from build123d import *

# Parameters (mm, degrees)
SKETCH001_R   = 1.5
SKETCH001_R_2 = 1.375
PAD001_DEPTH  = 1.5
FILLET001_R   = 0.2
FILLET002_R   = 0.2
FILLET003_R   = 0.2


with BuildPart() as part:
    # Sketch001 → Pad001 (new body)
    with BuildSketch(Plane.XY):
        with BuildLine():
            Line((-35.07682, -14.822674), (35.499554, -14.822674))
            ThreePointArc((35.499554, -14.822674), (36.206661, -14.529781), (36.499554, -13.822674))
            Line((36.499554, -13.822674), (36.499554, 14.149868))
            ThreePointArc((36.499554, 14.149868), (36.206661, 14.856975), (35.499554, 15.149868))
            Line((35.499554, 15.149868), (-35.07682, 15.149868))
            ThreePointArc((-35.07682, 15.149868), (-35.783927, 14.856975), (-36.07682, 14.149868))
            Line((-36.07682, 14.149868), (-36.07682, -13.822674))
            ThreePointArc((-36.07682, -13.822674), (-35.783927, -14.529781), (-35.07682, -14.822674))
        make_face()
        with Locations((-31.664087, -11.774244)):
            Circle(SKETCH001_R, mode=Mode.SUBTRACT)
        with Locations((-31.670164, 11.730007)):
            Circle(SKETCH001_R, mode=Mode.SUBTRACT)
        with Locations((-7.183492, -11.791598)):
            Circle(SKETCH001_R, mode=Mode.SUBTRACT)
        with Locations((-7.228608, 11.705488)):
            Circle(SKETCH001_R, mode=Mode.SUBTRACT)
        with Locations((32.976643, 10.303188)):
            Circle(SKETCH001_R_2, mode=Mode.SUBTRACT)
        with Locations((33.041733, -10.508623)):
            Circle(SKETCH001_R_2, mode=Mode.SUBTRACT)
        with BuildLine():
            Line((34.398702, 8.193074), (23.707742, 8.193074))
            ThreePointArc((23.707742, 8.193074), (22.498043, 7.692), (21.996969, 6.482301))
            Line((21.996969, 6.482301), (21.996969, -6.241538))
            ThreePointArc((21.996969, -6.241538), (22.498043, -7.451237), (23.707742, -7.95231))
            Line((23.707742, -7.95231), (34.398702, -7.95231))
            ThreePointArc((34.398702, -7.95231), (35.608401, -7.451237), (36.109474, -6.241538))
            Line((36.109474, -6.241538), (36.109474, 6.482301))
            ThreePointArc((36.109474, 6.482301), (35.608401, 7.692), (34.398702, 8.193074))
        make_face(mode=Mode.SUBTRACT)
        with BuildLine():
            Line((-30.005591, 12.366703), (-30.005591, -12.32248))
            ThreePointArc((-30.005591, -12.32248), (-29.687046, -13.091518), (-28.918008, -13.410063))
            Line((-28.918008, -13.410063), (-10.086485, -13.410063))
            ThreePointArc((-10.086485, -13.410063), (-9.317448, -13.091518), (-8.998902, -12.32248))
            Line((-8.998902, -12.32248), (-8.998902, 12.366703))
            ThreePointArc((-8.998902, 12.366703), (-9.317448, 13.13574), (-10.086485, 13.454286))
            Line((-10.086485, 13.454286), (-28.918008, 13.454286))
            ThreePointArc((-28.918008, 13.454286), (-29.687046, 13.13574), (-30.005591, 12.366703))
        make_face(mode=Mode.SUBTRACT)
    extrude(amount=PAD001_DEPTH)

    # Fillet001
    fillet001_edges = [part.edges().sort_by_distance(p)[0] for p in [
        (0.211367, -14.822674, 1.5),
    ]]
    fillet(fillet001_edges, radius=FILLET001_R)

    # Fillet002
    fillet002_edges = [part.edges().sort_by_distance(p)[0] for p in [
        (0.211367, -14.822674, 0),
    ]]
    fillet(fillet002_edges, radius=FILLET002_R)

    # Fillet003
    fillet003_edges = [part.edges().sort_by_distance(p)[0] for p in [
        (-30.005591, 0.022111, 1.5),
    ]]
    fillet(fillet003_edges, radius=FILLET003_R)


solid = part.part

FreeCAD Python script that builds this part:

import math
import FreeCAD as App
import Part
import Sketcher
Q = App.Units.Quantity


def edges_at(feature, points):
    """Names of the edges that pass closest to the given points."""
    edges = feature.Shape.Edges
    near = lambda p: min(range(len(edges)), key=lambda i: edges[i].distToShape(Part.Vertex(*p))[0])
    return sorted({f"Edge{near(p) + 1}" for p in points})

doc = App.newDocument("Part")
body = doc.addObject("PartDesign::Body", "Body")

# Sketch on XY plane
sketch1 = body.newObject("Sketcher::SketchObject", "Sketch")
sketch1.AttachmentSupport = (doc.getObject("XY_Plane"), [""])
sketch1.MapMode = "FlatFace"
sketch1.addGeometry(Part.LineSegment(App.Vector(-35.07682, -14.822674, 0), App.Vector(35.499554, -14.822674, 0)), False)
sketch1.addGeometry(Part.ArcOfCircle(Part.Circle(App.Vector(35.499555, -13.822675, 0), App.Vector(0, 0, 1), 0.999999), math.radians(-90.000043), math.radians(0.000043)), False)
sketch1.addGeometry(Part.LineSegment(App.Vector(36.499554, -13.822674, 0), App.Vector(36.499554, 14.149868, 0)), False)
sketch1.addGeometry(Part.ArcOfCircle(Part.Circle(App.Vector(35.499555, 14.149869, 0), App.Vector(0, 0, 1), 0.999999), math.radians(-0.000043), math.radians(90.000043)), False)
sketch1.addGeometry(Part.LineSegment(App.Vector(35.499554, 15.149868, 0), App.Vector(-35.07682, 15.149868, 0)), False)
sketch1.addGeometry(Part.ArcOfCircle(Part.Circle(App.Vector(-35.076821, 14.149869, 0), App.Vector(0, 0, 1), 0.999999), math.radians(89.999957), math.radians(180.000043)), False)
sketch1.addGeometry(Part.LineSegment(App.Vector(-36.07682, 14.149868, 0), App.Vector(-36.07682, -13.822674, 0)), False)
sketch1.addGeometry(Part.ArcOfCircle(Part.Circle(App.Vector(-35.076821, -13.822675, 0), App.Vector(0, 0, 1), 0.999999), math.radians(179.999957), math.radians(270.000043)), False)
sketch1.addGeometry(Part.Circle(App.Vector(-31.664087, -11.774244, 0), App.Vector(0, 0, 1), 1.5), False)
sketch1.addGeometry(Part.Circle(App.Vector(-7.183492, -11.791598, 0), App.Vector(0, 0, 1), 1.5), False)
sketch1.addGeometry(Part.Circle(App.Vector(33.041733, -10.508623, 0), App.Vector(0, 0, 1), 1.375), False)
sketch1.addGeometry(Part.LineSegment(App.Vector(-30.005591, -12.32248, 0), App.Vector(-30.005591, 12.366703, 0)), False)
sketch1.addGeometry(Part.ArcOfCircle(Part.Circle(App.Vector(-28.918009, 12.366704, 0), App.Vector(0, 0, 1), 1.087582), math.radians(89.999967), math.radians(180.000033)), False)
sketch1.addGeometry(Part.LineSegment(App.Vector(-28.918008, 13.454286, 0), App.Vector(-10.086485, 13.454286, 0)), False)
sketch1.addGeometry(Part.ArcOfCircle(Part.Circle(App.Vector(-10.086486, 12.366702, 0), App.Vector(0, 0, 1), 1.087584), math.radians(0.000057), math.radians(89.999943)), False)
sketch1.addGeometry(Part.LineSegment(App.Vector(-8.998902, 12.366703, 0), App.Vector(-8.998902, -12.32248, 0)), False)
sketch1.addGeometry(Part.ArcOfCircle(Part.Circle(App.Vector(-10.086484, -12.322481, 0), App.Vector(0, 0, 1), 1.087582), math.radians(-90.000033), math.radians(0.000033)), False)
sketch1.addGeometry(Part.LineSegment(App.Vector(-10.086485, -13.410063, 0), App.Vector(-28.918008, -13.410063, 0)), False)
sketch1.addGeometry(Part.ArcOfCircle(Part.Circle(App.Vector(-28.91801, -12.322482, 0), App.Vector(0, 0, 1), 1.087581), math.radians(179.999877), math.radians(270.000123)), False)
sketch1.addGeometry(Part.Circle(App.Vector(-31.670164, 11.730007, 0), App.Vector(0, 0, 1), 1.5), False)
sketch1.addGeometry(Part.Circle(App.Vector(-7.228608, 11.705488, 0), App.Vector(0, 0, 1), 1.5), False)
sketch1.addGeometry(Part.LineSegment(App.Vector(23.707742, 8.193074, 0), App.Vector(34.398702, 8.193074, 0)), False)
sketch1.addGeometry(Part.ArcOfCircle(Part.Circle(App.Vector(34.398702, 6.482302, 0), App.Vector(0, 0, 1), 1.710772), math.radians(-0.000036), math.radians(90.000002)), False)
sketch1.addGeometry(Part.LineSegment(App.Vector(36.109474, 6.482301, 0), App.Vector(36.109474, -6.241538, 0)), False)
sketch1.addGeometry(Part.ArcOfCircle(Part.Circle(App.Vector(34.398704, -6.24154, 0), App.Vector(0, 0, 1), 1.71077), math.radians(-90.000059), math.radians(0.000059)), False)
sketch1.addGeometry(Part.LineSegment(App.Vector(34.398702, -7.95231, 0), App.Vector(23.707742, -7.95231, 0)), False)
sketch1.addGeometry(Part.ArcOfCircle(Part.Circle(App.Vector(23.707741, -6.241538, 0), App.Vector(0, 0, 1), 1.710772), math.radians(179.999998), math.radians(270.000036)), False)
sketch1.addGeometry(Part.LineSegment(App.Vector(21.996969, -6.241538, 0), App.Vector(21.996969, 6.482301, 0)), False)
sketch1.addGeometry(Part.ArcOfCircle(Part.Circle(App.Vector(23.707743, 6.4823, 0), App.Vector(0, 0, 1), 1.710774), math.radians(90.000022), math.radians(179.999978)), False)
sketch1.addGeometry(Part.Circle(App.Vector(32.976643, 10.303188, 0), App.Vector(0, 0, 1), 1.375), False)
sketch1.addConstraint(Sketcher.Constraint("Tangent", 0, 2, 1, 1))
sketch1.addConstraint(Sketcher.Constraint("Tangent", 1, 2, 2, 1))
sketch1.addConstraint(Sketcher.Constraint("Tangent", 2, 2, 3, 1))
sketch1.addConstraint(Sketcher.Constraint("Tangent", 3, 2, 4, 1))
sketch1.addConstraint(Sketcher.Constraint("Tangent", 4, 2, 5, 1))
sketch1.addConstraint(Sketcher.Constraint("Tangent", 5, 2, 6, 1))
sketch1.addConstraint(Sketcher.Constraint("Tangent", 6, 2, 7, 1))
sketch1.addConstraint(Sketcher.Constraint("Tangent", 7, 2, 0, 1))
sketch1.addConstraint(Sketcher.Constraint("Tangent", 11, 2, 12, 2))
sketch1.addConstraint(Sketcher.Constraint("Tangent", 12, 1, 13, 1))
sketch1.addConstraint(Sketcher.Constraint("Tangent", 13, 2, 14, 2))
sketch1.addConstraint(Sketcher.Constraint("Tangent", 14, 1, 15, 1))
sketch1.addConstraint(Sketcher.Constraint("Tangent", 15, 2, 16, 2))
sketch1.addConstraint(Sketcher.Constraint("Tangent", 16, 1, 17, 1))
sketch1.addConstraint(Sketcher.Constraint("Coincident", 17, 2, 18, 2))
sketch1.addConstraint(Sketcher.Constraint("Coincident", 18, 1, 11, 1))
sketch1.addConstraint(Sketcher.Constraint("Tangent", 21, 2, 22, 2))
sketch1.addConstraint(Sketcher.Constraint("Tangent", 22, 1, 23, 1))
sketch1.addConstraint(Sketcher.Constraint("Tangent", 23, 2, 24, 2))
sketch1.addConstraint(Sketcher.Constraint("Tangent", 24, 1, 25, 1))
sketch1.addConstraint(Sketcher.Constraint("Tangent", 25, 2, 26, 2))
sketch1.addConstraint(Sketcher.Constraint("Tangent", 26, 1, 27, 1))
sketch1.addConstraint(Sketcher.Constraint("Tangent", 27, 2, 28, 2))
sketch1.addConstraint(Sketcher.Constraint("Tangent", 28, 1, 21, 1))
sketch1.addConstraint(Sketcher.Constraint("Horizontal", 0))
sketch1.addConstraint(Sketcher.Constraint("Vertical", 2))
sketch1.addConstraint(Sketcher.Constraint("Horizontal", 4))
sketch1.addConstraint(Sketcher.Constraint("Vertical", 6))
sketch1.addConstraint(Sketcher.Constraint("Vertical", 11))
sketch1.addConstraint(Sketcher.Constraint("Horizontal", 13))
sketch1.addConstraint(Sketcher.Constraint("Vertical", 15))
sketch1.addConstraint(Sketcher.Constraint("Horizontal", 17))
sketch1.addConstraint(Sketcher.Constraint("Horizontal", 21))
sketch1.addConstraint(Sketcher.Constraint("Vertical", 23))
sketch1.addConstraint(Sketcher.Constraint("Horizontal", 25))
sketch1.addConstraint(Sketcher.Constraint("Vertical", 27))
sketch1.addConstraint(Sketcher.Constraint("Equal", 1, 3))
sketch1.addConstraint(Sketcher.Constraint("Equal", 3, 5))
sketch1.addConstraint(Sketcher.Constraint("Equal", 5, 7))
sketch1.addConstraint(Sketcher.Constraint("Equal", 8, 9))
sketch1.addConstraint(Sketcher.Constraint("Equal", 12, 14))
sketch1.addConstraint(Sketcher.Constraint("Equal", 14, 16))
sketch1.addConstraint(Sketcher.Constraint("Equal", 16, 18))
sketch1.addConstraint(Sketcher.Constraint("Equal", 9, 19))
sketch1.addConstraint(Sketcher.Constraint("Equal", 19, 20))
sketch1.addConstraint(Sketcher.Constraint("Equal", 22, 24))
sketch1.addConstraint(Sketcher.Constraint("Equal", 24, 26))
sketch1.addConstraint(Sketcher.Constraint("Equal", 26, 28))
sketch1.addConstraint(Sketcher.Constraint("Equal", 10, 29))
sketch1.addConstraint(Sketcher.Constraint("Horizontal", 15, 2, 18, 1))
sketch1.addConstraint(Sketcher.Constraint("Vertical", 12, 1, 17, 2))
sketch1.addConstraint(Sketcher.Constraint("Diameter", 8, Q("3 mm")))
sketch1.addConstraint(Sketcher.Constraint("Radius", 1, Q("0.999999 mm")))
sketch1.addConstraint(Sketcher.Constraint("Diameter", 10, Q("2.75 mm")))
sketch1.addConstraint(Sketcher.Constraint("Radius", 18, Q("1.087581 mm")))
sketch1.addConstraint(Sketcher.Constraint("Radius", 22, Q("1.710772 mm")))
sketch1.addConstraint(Sketcher.Constraint("DistanceX", 21, 1, 21, 2, Q("10.69096 mm")))
sketch1.addConstraint(Sketcher.Constraint("DistanceY", 2, 1, 2, 2, Q("27.972542 mm")))
sketch1.addConstraint(Sketcher.Constraint("DistanceY", 23, 2, 23, 1, Q("12.723839 mm")))
sketch1.addConstraint(Sketcher.Constraint("DistanceY", -1, 1, 14, 3, Q("12.366702 mm")))
sketch1.addConstraint(Sketcher.Constraint("DistanceY", -1, 1, 28, 3, Q("6.4823 mm")))
sketch1.addConstraint(Sketcher.Constraint("DistanceX", 15, 2, -1, 1, Q("8.998902 mm")))
sketch1.addConstraint(Sketcher.Constraint("DistanceY", 9, 3, 12, 3, Q("24.158302 mm")))
sketch1.addConstraint(Sketcher.Constraint("DistanceX", 8, 3, 14, 3, Q("21.577601 mm")))
sketch1.addConstraint(Sketcher.Constraint("DistanceX", 12, 3, 20, 3, Q("21.689401 mm")))
sketch1.addConstraint(Sketcher.Constraint("DistanceX", 28, 3, 29, 3, Q("9.2689 mm")))
sketch1.addConstraint(Sketcher.Constraint("DistanceX", 0, 1, 0, 2, Q("70.576374 mm")))
sketch1.addConstraint(Sketcher.Constraint("DistanceX", 13, 1, 13, 2, Q("18.831523 mm")))
sketch1.addConstraint(Sketcher.Constraint("DistanceY", 11, 1, 11, 2, Q("24.689183 mm")))
sketch1.addConstraint(Sketcher.Constraint("DistanceY", -1, 1, 3, 3, Q("14.149869 mm")))
sketch1.addConstraint(Sketcher.Constraint("DistanceX", 5, 3, -1, 1, Q("35.076821 mm")))
sketch1.addConstraint(Sketcher.Constraint("DistanceY", -1, 1, 20, 3, Q("11.705488 mm")))
sketch1.addConstraint(Sketcher.Constraint("DistanceX", -1, 1, 26, 3, Q("23.707741 mm")))
sketch1.addConstraint(Sketcher.Constraint("DistanceY", 7, 3, 8, 3, Q("2.048431 mm")))
sketch1.addConstraint(Sketcher.Constraint("DistanceX", 7, 3, 9, 3, Q("27.893329 mm")))
sketch1.addConstraint(Sketcher.Constraint("DistanceX", 10, 3, 1, 3, Q("2.457822 mm")))
sketch1.addConstraint(Sketcher.Constraint("DistanceY", 1, 3, 10, 3, Q("3.314052 mm")))
sketch1.addConstraint(Sketcher.Constraint("DistanceY", 19, 3, 5, 3, Q("2.419862 mm")))
sketch1.addConstraint(Sketcher.Constraint("DistanceY", 29, 3, 3, 3, Q("3.846681 mm")))
sketch1.addConstraint(Sketcher.Constraint("DistanceX", 19, 3, -1, 1, Q("31.670164 mm")))
pad1 = body.newObject("PartDesign::Pad", "Pad")
pad1.Profile = sketch1
pad1.Length = 1.5
doc.recompute()

fillet = body.newObject("PartDesign::Fillet", "Fillet")
fillet.Base = (pad1, edges_at(pad1, [(0.211, -14.823, 1.5)]))
fillet.Radius = 0.2
doc.recompute()

fillet2 = body.newObject("PartDesign::Fillet", "Fillet001")
fillet2.Base = (fillet, edges_at(fillet, [(0.211, -14.823, 0)]))
fillet2.Radius = 0.2
doc.recompute()

fillet3 = body.newObject("PartDesign::Fillet", "Fillet002")
fillet3.Base = (fillet2, edges_at(fillet2, [(-30.006, 0.022, 1.5)]))
fillet3.Radius = 0.2

doc.recompute()
